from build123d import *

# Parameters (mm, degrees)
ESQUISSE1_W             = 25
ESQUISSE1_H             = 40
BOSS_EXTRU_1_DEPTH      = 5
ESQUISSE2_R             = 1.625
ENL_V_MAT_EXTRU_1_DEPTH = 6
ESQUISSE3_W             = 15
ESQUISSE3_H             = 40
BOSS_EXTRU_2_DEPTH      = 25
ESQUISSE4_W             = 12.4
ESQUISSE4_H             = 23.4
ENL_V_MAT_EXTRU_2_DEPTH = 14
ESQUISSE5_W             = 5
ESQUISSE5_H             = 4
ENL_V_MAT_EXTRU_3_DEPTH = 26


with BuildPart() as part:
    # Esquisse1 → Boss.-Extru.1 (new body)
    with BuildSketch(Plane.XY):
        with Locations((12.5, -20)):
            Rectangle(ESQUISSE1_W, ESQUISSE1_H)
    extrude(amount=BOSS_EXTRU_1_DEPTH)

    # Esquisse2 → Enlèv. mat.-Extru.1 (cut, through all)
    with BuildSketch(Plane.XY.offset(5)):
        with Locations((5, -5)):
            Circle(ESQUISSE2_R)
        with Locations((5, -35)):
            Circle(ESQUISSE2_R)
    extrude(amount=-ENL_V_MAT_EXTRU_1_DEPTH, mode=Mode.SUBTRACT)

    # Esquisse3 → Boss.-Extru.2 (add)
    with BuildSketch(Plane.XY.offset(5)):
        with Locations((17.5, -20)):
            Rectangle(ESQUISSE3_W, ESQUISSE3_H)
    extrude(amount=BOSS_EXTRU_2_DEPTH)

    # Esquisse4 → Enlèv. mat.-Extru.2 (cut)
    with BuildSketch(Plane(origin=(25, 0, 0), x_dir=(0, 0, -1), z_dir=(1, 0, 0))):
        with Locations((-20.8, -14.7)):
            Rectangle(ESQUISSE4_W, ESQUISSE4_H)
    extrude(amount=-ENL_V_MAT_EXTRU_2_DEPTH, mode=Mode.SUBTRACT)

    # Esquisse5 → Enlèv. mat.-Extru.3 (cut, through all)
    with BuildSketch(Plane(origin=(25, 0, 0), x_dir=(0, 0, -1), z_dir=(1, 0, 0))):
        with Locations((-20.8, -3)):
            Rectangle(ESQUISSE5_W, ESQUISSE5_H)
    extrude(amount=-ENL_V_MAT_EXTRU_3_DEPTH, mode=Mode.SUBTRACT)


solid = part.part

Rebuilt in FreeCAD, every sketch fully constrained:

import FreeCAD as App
import Part
import Sketcher

V = App.Vector

doc = App.newDocument("Part")
body = doc.addObject("PartDesign::Body", "Body")

sketch1 = doc.addObject("Sketcher::SketchObject", "Sketch")
body.addObject(sketch1)
sketch1.AttachmentSupport = (doc.XY_Plane, [""])
sketch1.MapMode = "FlatFace"
sketch1.addGeometry(Part.LineSegment(V(0, 0, 0), V(0, -40, 0)), False)
sketch1.addGeometry(Part.LineSegment(V(0, -40, 0), V(25, -40, 0)), False)
sketch1.addGeometry(Part.LineSegment(V(25, -40, 0), V(25, 0, 0)), False)
sketch1.addGeometry(Part.LineSegment(V(25, 0, 0), V(0, 0, 0)), False)
sketch1.addConstraint(Sketcher.Constraint("Coincident", 0, 2, 1, 1))
sketch1.addConstraint(Sketcher.Constraint("Coincident", 1, 2, 2, 1))
sketch1.addConstraint(Sketcher.Constraint("Coincident", 2, 2, 3, 1))
sketch1.addConstraint(Sketcher.Constraint("Coincident", 3, 2, 0, 1))
sketch1.addConstraint(Sketcher.Constraint("Vertical", 0))
sketch1.addConstraint(Sketcher.Constraint("Horizontal", 1))
sketch1.addConstraint(Sketcher.Constraint("Vertical", 2))
sketch1.addConstraint(Sketcher.Constraint("Horizontal", 3))
sketch1.addConstraint(Sketcher.Constraint("Coincident", 3, 2, -1, 1))
sketch1.addConstraint(Sketcher.Constraint("DistanceX", 1, 1, 1, 2, 25.0))
sketch1.addConstraint(Sketcher.Constraint("DistanceY", 0, 2, 0, 1, 40.0))
pad1 = doc.addObject("PartDesign::Pad", "Pad")
body.addObject(pad1)
pad1.Profile = sketch1
pad1.Length = 5

sketch2 = doc.addObject("Sketcher::SketchObject", "Sketch001")
body.addObject(sketch2)
sketch2.AttachmentSupport = (doc.XY_Plane, [""])
sketch2.MapMode = "FlatFace"
sketch2.AttachmentOffset = App.Placement(V(0, 0, 5), App.Rotation())
sketch2.addGeometry(Part.Circle(V(5, -5, 0), V(0, 0, 1), 1.6), False)
sketch2.addGeometry(Part.Circle(V(5, -35, 0), V(0, 0, 1), 1.6), False)
sketch2.addConstraint(Sketcher.Constraint("Equal", 0, 1))
sketch2.addConstraint(Sketcher.Constraint("Vertical", 0, 3, 1, 3))
sketch2.addConstraint(Sketcher.Constraint("Diameter", 0, 3.25))
sketch2.addConstraint(Sketcher.Constraint("DistanceX", -1, 1, 0, 3, 5.0))
sketch2.addConstraint(Sketcher.Constraint("DistanceY", 0, 3, -1, 1, 5.0))
sketch2.addConstraint(Sketcher.Constraint("DistanceY", 1, 3, -1, 1, 35.0))
pocket1 = doc.addObject("PartDesign::Pocket", "Pocket")
body.addObject(pocket1)
pocket1.Profile = sketch2
pocket1.Type = "ThroughAll"

sketch3 = doc.addObject("Sketcher::SketchObject", "Sketch002")
body.addObject(sketch3)
sketch3.AttachmentSupport = (doc.XY_Plane, [""])
sketch3.MapMode = "FlatFace"
sketch3.AttachmentOffset = App.Placement(V(0, 0, 5), App.Rotation())
sketch3.addGeometry(Part.LineSegment(V(10, 0, 0), V(10, -40, 0)), False)
sketch3.addGeometry(Part.LineSegment(V(10, -40, 0), V(25, -40, 0)), False)
sketch3.addGeometry(Part.LineSegment(V(25, -40, 0), V(25, 0, 0)), False)
sketch3.addGeometry(Part.LineSegment(V(25, 0, 0), V(10, 0, 0)), False)
sketch3.addConstraint(Sketcher.Constraint("Coincident", 0, 2, 1, 1))
sketch3.addConstraint(Sketcher.Constraint("Coincident", 1, 2, 2, 1))
sketch3.addConstraint(Sketcher.Constraint("Coincident", 2, 2, 3, 1))
sketch3.addConstraint(Sketcher.Constraint("Coincident", 3, 2, 0, 1))
sketch3.addConstraint(Sketcher.Constraint("Vertical", 0))
sketch3.addConstraint(Sketcher.Constraint("Horizontal", 1))
sketch3.addConstraint(Sketcher.Constraint("Vertical", 2))
sketch3.addConstraint(Sketcher.Constraint("Horizontal", 3))
sketch3.addConstraint(Sketcher.Constraint("PointOnObject", 2, 2, -1))
sketch3.addConstraint(Sketcher.Constraint("DistanceX", 1, 1, 1, 2, 15.0))
sketch3.addConstraint(Sketcher.Constraint("DistanceY", 0, 2, 0, 1, 40.0))
sketch3.addConstraint(Sketcher.Constraint("DistanceX", -1, 1, 0, 2, 10.0))
pad2 = doc.addObject("PartDesign::Pad", "Pad001")
body.addObject(pad2)
pad2.Profile = sketch3
pad2.Length = 25

sketch4 = doc.addObject("Sketcher::SketchObject", "Sketch003")
body.addObject(sketch4)
sketch4.AttachmentSupport = (doc.YZ_Plane, [""])
sketch4.MapMode = "FlatFace"
sketch4.AttachmentOffset = App.Placement(V(0, 0, 25), App.Rotation())
sketch4.addGeometry(Part.LineSegment(V(-3, 27, 0), V(-26, 27, 0)), False)
sketch4.addGeometry(Part.LineSegment(V(-26, 27, 0), V(-26, 15, 0)), False)
sketch4.addGeometry(Part.LineSegment(V(-26, 15, 0), V(-3, 15, 0)), False)
sketch4.addGeometry(Part.LineSegment(V(-3, 15, 0), V(-3, 27, 0)), False)
sketch4.addConstraint(Sketcher.Constraint("Coincident", 0, 2, 1, 1))
sketch4.addConstraint(Sketcher.Constraint("Coincident", 1, 2, 2, 1))
sketch4.addConstraint(Sketcher.Constraint("Coincident", 2, 2, 3, 1))
sketch4.addConstraint(Sketcher.Constraint("Coincident", 3, 2, 0, 1))
sketch4.addConstraint(Sketcher.Constraint("Horizontal", 0))
sketch4.addConstraint(Sketcher.Constraint("Vertical", 1))
sketch4.addConstraint(Sketcher.Constraint("Horizontal", 2))
sketch4.addConstraint(Sketcher.Constraint("Vertical", 3))
sketch4.addConstraint(Sketcher.Constraint("DistanceX", 0, 2, 0, 1, 23.4))
sketch4.addConstraint(Sketcher.Constraint("DistanceY", 1, 2, 1, 1, 12.4))
sketch4.addConstraint(Sketcher.Constraint("DistanceY", -1, 1, 0, 2, 27.0))
sketch4.addConstraint(Sketcher.Constraint("DistanceX", 2, 2, -1, 1, 3.0))
pocket2 = doc.addObject("PartDesign::Pocket", "Pocket001")
body.addObject(pocket2)
pocket2.Profile = sketch4
pocket2.Length = 14

sketch5 = doc.addObject("Sketcher::SketchObject", "Sketch004")
body.addObject(sketch5)
sketch5.AttachmentSupport = (doc.YZ_Plane, [""])
sketch5.MapMode = "FlatFace"
sketch5.AttachmentOffset = App.Placement(V(0, 0, 25), App.Rotation())
sketch5.addGeometry(Part.LineSegment(V(-1, 23.3, 0), V(-5, 23.3, 0)), False)
sketch5.addGeometry(Part.LineSegment(V(-5, 23.3, 0), V(-5, 18.3, 0)), False)
sketch5.addGeometry(Part.LineSegment(V(-5, 18.3, 0), V(-1, 18.3, 0)), False)
sketch5.addGeometry(Part.LineSegment(V(-1, 18.3, 0), V(-1, 23.3, 0)), False)
sketch5.addConstraint(Sketcher.Constraint("Coincident", 0, 2, 1, 1))
sketch5.addConstraint(Sketcher.Constraint("Coincident", 1, 2, 2, 1))
sketch5.addConstraint(Sketcher.Constraint("Coincident", 2, 2, 3, 1))
sketch5.addConstraint(Sketcher.Constraint("Coincident", 3, 2, 0, 1))
sketch5.addConstraint(Sketcher.Constraint("Horizontal", 0))
sketch5.addConstraint(Sketcher.Constraint("Vertical", 1))
sketch5.addConstraint(Sketcher.Constraint("Horizontal", 2))
sketch5.addConstraint(Sketcher.Constraint("Vertical", 3))
sketch5.addConstraint(Sketcher.Constraint("DistanceX", 0, 2, 0, 1, 4.0))
sketch5.addConstraint(Sketcher.Constraint("DistanceY", 1, 2, 1, 1, 5.0))
sketch5.addConstraint(Sketcher.Constraint("DistanceX", 0, 2, -1, 1, 5.0))
sketch5.addConstraint(Sketcher.Constraint("DistanceY", -1, 1, 0, 2, 23.3))
pocket3 = doc.addObject("PartDesign::Pocket", "Pocket002")
body.addObject(pocket3)
pocket3.Profile = sketch5
pocket3.Type = "ThroughAll"

doc.recompute()
